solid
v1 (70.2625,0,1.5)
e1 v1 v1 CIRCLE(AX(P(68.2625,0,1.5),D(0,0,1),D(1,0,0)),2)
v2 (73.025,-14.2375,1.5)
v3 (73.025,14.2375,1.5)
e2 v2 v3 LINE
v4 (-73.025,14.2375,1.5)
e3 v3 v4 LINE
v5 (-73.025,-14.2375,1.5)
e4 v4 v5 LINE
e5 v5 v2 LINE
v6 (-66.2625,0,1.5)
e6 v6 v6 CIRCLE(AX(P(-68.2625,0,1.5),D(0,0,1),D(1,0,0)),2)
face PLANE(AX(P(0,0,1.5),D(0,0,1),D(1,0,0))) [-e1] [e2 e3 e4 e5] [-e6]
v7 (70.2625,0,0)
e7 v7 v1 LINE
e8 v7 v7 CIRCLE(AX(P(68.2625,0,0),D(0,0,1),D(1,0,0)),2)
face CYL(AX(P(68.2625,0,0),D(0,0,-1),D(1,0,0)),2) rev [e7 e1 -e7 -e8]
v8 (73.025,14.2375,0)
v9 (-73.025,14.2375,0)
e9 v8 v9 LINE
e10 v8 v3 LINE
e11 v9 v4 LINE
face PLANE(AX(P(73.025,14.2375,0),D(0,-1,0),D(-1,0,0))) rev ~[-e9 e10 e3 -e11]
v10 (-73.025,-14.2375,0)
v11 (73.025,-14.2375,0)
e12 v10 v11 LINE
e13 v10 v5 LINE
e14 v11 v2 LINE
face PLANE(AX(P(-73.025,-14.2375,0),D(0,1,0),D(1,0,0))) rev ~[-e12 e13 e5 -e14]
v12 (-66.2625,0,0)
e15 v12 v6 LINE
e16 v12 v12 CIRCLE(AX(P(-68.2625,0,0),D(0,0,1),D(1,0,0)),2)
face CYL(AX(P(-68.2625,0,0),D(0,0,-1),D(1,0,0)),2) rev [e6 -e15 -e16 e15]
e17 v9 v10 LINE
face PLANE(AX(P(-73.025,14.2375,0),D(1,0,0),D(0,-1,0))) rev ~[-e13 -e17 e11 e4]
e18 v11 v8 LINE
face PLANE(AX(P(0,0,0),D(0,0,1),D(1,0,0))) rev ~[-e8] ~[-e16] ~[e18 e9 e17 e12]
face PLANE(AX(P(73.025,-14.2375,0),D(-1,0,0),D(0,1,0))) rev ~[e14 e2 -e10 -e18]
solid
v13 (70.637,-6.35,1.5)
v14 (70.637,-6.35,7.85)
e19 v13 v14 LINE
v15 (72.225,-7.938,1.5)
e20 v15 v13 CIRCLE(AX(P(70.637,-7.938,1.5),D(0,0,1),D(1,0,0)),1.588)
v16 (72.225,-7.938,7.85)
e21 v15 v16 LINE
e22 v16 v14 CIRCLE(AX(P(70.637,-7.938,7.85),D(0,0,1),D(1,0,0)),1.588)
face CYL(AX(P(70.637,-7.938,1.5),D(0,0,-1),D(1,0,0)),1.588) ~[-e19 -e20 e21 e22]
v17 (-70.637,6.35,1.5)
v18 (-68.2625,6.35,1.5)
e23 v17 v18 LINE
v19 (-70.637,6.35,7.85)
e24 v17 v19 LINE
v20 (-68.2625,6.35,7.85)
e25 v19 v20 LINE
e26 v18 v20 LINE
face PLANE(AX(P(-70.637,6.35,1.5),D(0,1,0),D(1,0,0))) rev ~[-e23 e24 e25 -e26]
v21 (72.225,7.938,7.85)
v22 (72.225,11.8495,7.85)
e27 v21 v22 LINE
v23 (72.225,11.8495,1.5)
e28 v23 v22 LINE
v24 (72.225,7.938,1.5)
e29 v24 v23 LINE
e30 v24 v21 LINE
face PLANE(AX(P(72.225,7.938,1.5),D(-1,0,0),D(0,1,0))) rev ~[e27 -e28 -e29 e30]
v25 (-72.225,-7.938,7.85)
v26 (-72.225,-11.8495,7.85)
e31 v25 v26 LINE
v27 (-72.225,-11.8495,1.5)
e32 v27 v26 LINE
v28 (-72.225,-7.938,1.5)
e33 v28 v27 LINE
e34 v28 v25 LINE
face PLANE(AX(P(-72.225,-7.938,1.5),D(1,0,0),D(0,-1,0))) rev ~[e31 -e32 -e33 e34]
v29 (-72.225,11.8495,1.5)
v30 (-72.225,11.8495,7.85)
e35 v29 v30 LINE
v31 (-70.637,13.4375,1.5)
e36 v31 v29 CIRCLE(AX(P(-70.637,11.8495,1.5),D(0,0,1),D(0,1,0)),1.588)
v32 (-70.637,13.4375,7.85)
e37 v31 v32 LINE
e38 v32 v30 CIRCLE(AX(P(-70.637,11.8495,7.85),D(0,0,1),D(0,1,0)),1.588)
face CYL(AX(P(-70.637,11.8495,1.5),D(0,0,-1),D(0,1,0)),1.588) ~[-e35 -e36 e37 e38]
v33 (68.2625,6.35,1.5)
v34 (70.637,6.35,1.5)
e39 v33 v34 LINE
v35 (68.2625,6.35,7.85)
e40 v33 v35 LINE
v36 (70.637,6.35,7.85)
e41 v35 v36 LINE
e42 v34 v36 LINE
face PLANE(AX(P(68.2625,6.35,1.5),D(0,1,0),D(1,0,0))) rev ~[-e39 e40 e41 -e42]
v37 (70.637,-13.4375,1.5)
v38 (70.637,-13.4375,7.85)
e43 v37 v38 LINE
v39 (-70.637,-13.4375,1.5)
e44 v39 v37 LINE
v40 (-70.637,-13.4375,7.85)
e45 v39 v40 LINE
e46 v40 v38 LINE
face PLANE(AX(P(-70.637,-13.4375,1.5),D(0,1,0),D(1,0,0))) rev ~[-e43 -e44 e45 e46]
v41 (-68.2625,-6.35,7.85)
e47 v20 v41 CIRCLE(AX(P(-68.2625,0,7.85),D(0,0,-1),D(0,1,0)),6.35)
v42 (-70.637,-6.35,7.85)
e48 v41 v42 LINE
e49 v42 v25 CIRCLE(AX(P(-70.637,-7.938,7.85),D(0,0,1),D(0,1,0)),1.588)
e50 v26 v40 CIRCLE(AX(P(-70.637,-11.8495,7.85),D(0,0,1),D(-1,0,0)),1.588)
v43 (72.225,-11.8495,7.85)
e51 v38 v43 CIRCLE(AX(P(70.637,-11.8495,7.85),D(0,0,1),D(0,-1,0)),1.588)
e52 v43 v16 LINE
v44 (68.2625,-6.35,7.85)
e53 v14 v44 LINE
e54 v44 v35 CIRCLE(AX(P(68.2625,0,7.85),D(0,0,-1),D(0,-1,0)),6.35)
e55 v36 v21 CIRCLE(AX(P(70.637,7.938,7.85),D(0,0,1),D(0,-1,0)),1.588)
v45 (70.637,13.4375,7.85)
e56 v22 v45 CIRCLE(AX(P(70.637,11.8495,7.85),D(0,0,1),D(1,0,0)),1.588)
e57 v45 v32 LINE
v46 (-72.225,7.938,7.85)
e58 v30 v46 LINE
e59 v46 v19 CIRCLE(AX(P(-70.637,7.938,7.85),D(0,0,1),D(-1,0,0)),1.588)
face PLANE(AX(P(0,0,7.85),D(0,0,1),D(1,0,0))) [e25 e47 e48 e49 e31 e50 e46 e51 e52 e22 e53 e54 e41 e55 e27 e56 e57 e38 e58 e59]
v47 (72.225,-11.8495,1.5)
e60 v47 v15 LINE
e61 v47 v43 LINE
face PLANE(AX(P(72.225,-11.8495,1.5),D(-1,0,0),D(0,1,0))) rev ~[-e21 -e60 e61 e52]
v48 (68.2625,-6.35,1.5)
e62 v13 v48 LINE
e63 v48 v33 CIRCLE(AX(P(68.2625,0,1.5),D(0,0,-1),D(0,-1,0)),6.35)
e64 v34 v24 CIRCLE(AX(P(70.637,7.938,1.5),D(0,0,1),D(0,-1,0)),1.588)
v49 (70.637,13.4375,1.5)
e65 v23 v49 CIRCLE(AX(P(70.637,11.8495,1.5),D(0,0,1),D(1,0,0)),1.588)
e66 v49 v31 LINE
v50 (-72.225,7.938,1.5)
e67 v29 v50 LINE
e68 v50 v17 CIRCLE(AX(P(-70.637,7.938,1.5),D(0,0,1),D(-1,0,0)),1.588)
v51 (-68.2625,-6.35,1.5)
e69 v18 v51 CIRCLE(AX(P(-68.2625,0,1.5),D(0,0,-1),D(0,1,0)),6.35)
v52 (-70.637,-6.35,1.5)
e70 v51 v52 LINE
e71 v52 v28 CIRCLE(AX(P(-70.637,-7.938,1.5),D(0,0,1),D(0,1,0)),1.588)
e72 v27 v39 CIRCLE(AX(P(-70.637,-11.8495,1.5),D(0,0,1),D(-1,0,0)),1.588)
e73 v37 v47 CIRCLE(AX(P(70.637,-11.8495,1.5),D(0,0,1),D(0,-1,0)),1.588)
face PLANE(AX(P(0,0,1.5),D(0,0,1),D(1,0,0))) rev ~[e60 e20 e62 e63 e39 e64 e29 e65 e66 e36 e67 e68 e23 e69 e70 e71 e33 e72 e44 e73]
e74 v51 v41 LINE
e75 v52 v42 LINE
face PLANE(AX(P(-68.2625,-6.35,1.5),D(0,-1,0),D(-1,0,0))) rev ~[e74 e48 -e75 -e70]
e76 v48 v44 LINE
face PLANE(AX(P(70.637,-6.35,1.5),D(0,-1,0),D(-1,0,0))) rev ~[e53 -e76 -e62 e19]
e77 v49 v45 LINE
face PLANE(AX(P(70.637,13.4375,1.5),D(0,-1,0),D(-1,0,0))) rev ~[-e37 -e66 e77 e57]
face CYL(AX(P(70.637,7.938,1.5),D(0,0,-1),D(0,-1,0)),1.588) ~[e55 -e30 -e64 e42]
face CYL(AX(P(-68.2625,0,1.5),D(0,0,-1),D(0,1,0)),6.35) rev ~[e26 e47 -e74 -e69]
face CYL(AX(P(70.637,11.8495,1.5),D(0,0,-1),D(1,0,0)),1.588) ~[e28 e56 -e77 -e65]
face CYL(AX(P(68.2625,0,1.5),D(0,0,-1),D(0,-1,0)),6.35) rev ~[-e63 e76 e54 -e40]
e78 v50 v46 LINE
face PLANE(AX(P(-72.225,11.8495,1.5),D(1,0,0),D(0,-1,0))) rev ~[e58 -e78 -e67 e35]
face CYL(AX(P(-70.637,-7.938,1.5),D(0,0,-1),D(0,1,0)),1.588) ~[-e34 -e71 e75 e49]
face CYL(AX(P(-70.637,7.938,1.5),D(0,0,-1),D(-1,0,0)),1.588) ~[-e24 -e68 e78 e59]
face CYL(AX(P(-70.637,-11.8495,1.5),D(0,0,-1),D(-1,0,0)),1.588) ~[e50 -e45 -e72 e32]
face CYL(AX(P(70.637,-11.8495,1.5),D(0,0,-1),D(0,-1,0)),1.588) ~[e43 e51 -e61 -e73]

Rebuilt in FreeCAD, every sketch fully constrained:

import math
import FreeCAD as App
import Part
import Sketcher
from FreeCAD import Vector
Q = App.Units.Quantity

doc = App.newDocument("Part")
body = doc.addObject("PartDesign::Body", "Body")

sketch1 = doc.addObject("Sketcher::SketchObject", "Sketch")
body.addObject(sketch1)
sketch1.AttachmentSupport = (doc.XY_Plane, [""])
sketch1.MapMode = "FlatFace"
sketch1.addGeometry([
    Part.LineSegment(Vector(-73.025, 14.2375, 0), Vector(-73.025, -14.2375, 0)),
    Part.LineSegment(Vector(-73.025, -14.2375, 0), Vector(73.025, -14.2375, 0)),
    Part.LineSegment(Vector(73.025, -14.2375, 0), Vector(73.025, 14.2375, 0)),
    Part.LineSegment(Vector(73.025, 14.2375, 0), Vector(-73.025, 14.2375, 0)),
    Part.Circle(Vector(-68.2625, 0, 0), Vector(0, 0, 1), 2),
    Part.Circle(Vector(68.2625, 0, 0), Vector(0, 0, 1), 2),
], False)
sketch1.addConstraint([
    Sketcher.Constraint("Coincident", 0, 2, 1, 1),
    Sketcher.Constraint("Coincident", 1, 2, 2, 1),
    Sketcher.Constraint("Coincident", 2, 2, 3, 1),
    Sketcher.Constraint("Coincident", 3, 2, 0, 1),
    Sketcher.Constraint("Vertical", 0),
    Sketcher.Constraint("Horizontal", 1),
    Sketcher.Constraint("Vertical", 2),
    Sketcher.Constraint("Horizontal", 3),
    Sketcher.Constraint("Equal", 4, 5),
    Sketcher.Constraint("Symmetric", 4, 3, 5, 3, -1, 1),
    Sketcher.Constraint("Symmetric", 0, 2, 2, 2, -1, 1),
    Sketcher.Constraint("PointOnObject", 4, 3, -1),
    Sketcher.Constraint("DistanceX", 1, 1, 1, 2, Q("5.75 in")),
    Sketcher.Constraint("Diameter", 4, 4.0),
    Sketcher.Constraint("DistanceX", 4, 3, -1, 1, Q("2.6875 in")),
    Sketcher.Constraint("DistanceY", 0, 2, 0, 1, 28.475),
])
pad1 = doc.addObject("PartDesign::Pad", "Pad")
body.addObject(pad1)
pad1.Profile = sketch1
pad1.Length = 1.5
body2 = doc.addObject("PartDesign::Body", "Body001")

sketch2 = doc.addObject("Sketcher::SketchObject", "Sketch001")
body2.addObject(sketch2)
sketch2.AttachmentSupport = (doc.getObject("XY_Plane001"), [""])
sketch2.MapMode = "FlatFace"
sketch2.AttachmentOffset = App.Placement(Vector(0, 0, 1.5), App.Rotation())
sketch2.addGeometry([
    Part.LineSegment(Vector(70.637, -6.35, 0), Vector(68.2625, -6.35, 0)),
    Part.ArcOfCircle(Part.Circle(Vector(68.2625, 0, 0), Vector(0, 0, 1), 6.35), math.radians(90), math.radians(270)),
    Part.LineSegment(Vector(68.2625, 6.35, 0), Vector(70.637, 6.35, 0)),
    Part.ArcOfCircle(Part.Circle(Vector(70.637, 7.938, 0), Vector(0, 0, 1), 1.588), math.radians(-90), math.radians(0)),
    Part.LineSegment(Vector(72.225, 7.938, 0), Vector(72.225, 11.8495, 0)),
    Part.ArcOfCircle(Part.Circle(Vector(70.637, 11.8495, 0), Vector(0, 0, 1), 1.588), math.radians(0), math.radians(90)),
    Part.LineSegment(Vector(70.637, 13.4375, 0), Vector(-70.637, 13.4375, 0)),
    Part.ArcOfCircle(Part.Circle(Vector(-70.637, 11.8495, 0), Vector(0, 0, 1), 1.588), math.radians(90), math.radians(180)),
    Part.LineSegment(Vector(-72.225, 11.8495, 0), Vector(-72.225, 7.938, 0)),
    Part.ArcOfCircle(Part.Circle(Vector(-70.637, 7.938, 0), Vector(0, 0, 1), 1.588), math.radians(180), math.radians(270)),
    Part.LineSegment(Vector(-70.637, 6.35, 0), Vector(-68.2625, 6.35, 0)),
    Part.ArcOfCircle(Part.Circle(Vector(-68.2625, 0, 0), Vector(0, 0, 1), 6.35), math.radians(-90), math.radians(90)),
    Part.LineSegment(Vector(-68.2625, -6.35, 0), Vector(-70.637, -6.35, 0)),
    Part.ArcOfCircle(Part.Circle(Vector(-70.637, -7.938, 0), Vector(0, 0, 1), 1.588), math.radians(90), math.radians(180)),
    Part.LineSegment(Vector(-72.225, -7.938, 0), Vector(-72.225, -11.8495, 0)),
    Part.ArcOfCircle(Part.Circle(Vector(-70.637, -11.8495, 0), Vector(0, 0, 1), 1.588), math.radians(180), math.radians(270)),
    Part.LineSegment(Vector(-70.637, -13.4375, 0), Vector(70.637, -13.4375, 0)),
    Part.ArcOfCircle(Part.Circle(Vector(70.637, -11.8495, 0), Vector(0, 0, 1), 1.588), math.radians(-90), math.radians(0)),
    Part.LineSegment(Vector(72.225, -11.8495, 0), Vector(72.225, -7.938, 0)),
    Part.ArcOfCircle(Part.Circle(Vector(70.637, -7.938, 0), Vector(0, 0, 1), 1.588), math.radians(0), math.radians(90)),
], False)
sketch2.addConstraint([
    Sketcher.Constraint("Tangent", 0, 2, 1, 2),
    Sketcher.Constraint("Tangent", 1, 1, 2, 1),
    Sketcher.Constraint("Tangent", 2, 2, 3, 1),
    Sketcher.Constraint("Tangent", 3, 2, 4, 1),
    Sketcher.Constraint("Tangent", 4, 2, 5, 1),
    Sketcher.Constraint("Tangent", 5, 2, 6, 1),
    Sketcher.Constraint("Tangent", 6, 2, 7, 1),
    Sketcher.Constraint("Tangent", 7, 2, 8, 1),
    Sketcher.Constraint("Tangent", 8, 2, 9, 1),
    Sketcher.Constraint("Tangent", 9, 2, 10, 1),
    Sketcher.Constraint("Tangent", 10, 2, 11, 2),
    Sketcher.Constraint("Tangent", 11, 1, 12, 1),
    Sketcher.Constraint("Tangent", 12, 2, 13, 1),
    Sketcher.Constraint("Tangent", 13, 2, 14, 1),
    Sketcher.Constraint("Tangent", 14, 2, 15, 1),
    Sketcher.Constraint("Tangent", 15, 2, 16, 1),
    Sketcher.Constraint("Tangent", 16, 2, 17, 1),
    Sketcher.Constraint("Tangent", 17, 2, 18, 1),
    Sketcher.Constraint("Tangent", 18, 2, 19, 1),
    Sketcher.Constraint("Tangent", 19, 2, 0, 1),
    Sketcher.Constraint("Horizontal", 0),
    Sketcher.Constraint("Horizontal", 2),
    Sketcher.Constraint("Vertical", 4),
    Sketcher.Constraint("Horizontal", 6),
    Sketcher.Constraint("Vertical", 8),
    Sketcher.Constraint("Horizontal", 10),
    Sketcher.Constraint("Horizontal", 12),
    Sketcher.Constraint("Vertical", 14),
    Sketcher.Constraint("Horizontal", 16),
    Sketcher.Constraint("Vertical", 18),
    Sketcher.Constraint("Equal", 3, 5),
    Sketcher.Constraint("Equal", 5, 7),
    Sketcher.Constraint("Equal", 7, 9),
    Sketcher.Constraint("Equal", 1, 11),
    Sketcher.Constraint("Equal", 9, 13),
    Sketcher.Constraint("Equal", 13, 15),
    Sketcher.Constraint("Equal", 15, 17),
    Sketcher.Constraint("Equal", 17, 19),
    Sketcher.Constraint("Symmetric", 1, 3, 11, 3, -1, 1),
    Sketcher.Constraint("Symmetric", 5, 3, 15, 3, -1, 1),
    Sketcher.Constraint("Symmetric", 3, 3, 9, 3, -2),
    Sketcher.Constraint("Vertical", 5, 3, 17, 3),
    Sketcher.Constraint("Radius", 1, Q("0.25 in")),
    Sketcher.Constraint("Radius", 3, 1.588),
    Sketcher.Constraint("DistanceX", -1, 1, 1, 3, Q("2.6875 in")),
    Sketcher.Constraint("DistanceX", 0, 2, 0, 1, 2.3745),
    Sketcher.Constraint("DistanceY", 4, 1, 4, 2, 3.9115),
])
pad2 = doc.addObject("PartDesign::Pad", "Pad001")
body2.addObject(pad2)
pad2.Profile = sketch2
pad2.Length = Q("0.25 in")

doc.recompute()
